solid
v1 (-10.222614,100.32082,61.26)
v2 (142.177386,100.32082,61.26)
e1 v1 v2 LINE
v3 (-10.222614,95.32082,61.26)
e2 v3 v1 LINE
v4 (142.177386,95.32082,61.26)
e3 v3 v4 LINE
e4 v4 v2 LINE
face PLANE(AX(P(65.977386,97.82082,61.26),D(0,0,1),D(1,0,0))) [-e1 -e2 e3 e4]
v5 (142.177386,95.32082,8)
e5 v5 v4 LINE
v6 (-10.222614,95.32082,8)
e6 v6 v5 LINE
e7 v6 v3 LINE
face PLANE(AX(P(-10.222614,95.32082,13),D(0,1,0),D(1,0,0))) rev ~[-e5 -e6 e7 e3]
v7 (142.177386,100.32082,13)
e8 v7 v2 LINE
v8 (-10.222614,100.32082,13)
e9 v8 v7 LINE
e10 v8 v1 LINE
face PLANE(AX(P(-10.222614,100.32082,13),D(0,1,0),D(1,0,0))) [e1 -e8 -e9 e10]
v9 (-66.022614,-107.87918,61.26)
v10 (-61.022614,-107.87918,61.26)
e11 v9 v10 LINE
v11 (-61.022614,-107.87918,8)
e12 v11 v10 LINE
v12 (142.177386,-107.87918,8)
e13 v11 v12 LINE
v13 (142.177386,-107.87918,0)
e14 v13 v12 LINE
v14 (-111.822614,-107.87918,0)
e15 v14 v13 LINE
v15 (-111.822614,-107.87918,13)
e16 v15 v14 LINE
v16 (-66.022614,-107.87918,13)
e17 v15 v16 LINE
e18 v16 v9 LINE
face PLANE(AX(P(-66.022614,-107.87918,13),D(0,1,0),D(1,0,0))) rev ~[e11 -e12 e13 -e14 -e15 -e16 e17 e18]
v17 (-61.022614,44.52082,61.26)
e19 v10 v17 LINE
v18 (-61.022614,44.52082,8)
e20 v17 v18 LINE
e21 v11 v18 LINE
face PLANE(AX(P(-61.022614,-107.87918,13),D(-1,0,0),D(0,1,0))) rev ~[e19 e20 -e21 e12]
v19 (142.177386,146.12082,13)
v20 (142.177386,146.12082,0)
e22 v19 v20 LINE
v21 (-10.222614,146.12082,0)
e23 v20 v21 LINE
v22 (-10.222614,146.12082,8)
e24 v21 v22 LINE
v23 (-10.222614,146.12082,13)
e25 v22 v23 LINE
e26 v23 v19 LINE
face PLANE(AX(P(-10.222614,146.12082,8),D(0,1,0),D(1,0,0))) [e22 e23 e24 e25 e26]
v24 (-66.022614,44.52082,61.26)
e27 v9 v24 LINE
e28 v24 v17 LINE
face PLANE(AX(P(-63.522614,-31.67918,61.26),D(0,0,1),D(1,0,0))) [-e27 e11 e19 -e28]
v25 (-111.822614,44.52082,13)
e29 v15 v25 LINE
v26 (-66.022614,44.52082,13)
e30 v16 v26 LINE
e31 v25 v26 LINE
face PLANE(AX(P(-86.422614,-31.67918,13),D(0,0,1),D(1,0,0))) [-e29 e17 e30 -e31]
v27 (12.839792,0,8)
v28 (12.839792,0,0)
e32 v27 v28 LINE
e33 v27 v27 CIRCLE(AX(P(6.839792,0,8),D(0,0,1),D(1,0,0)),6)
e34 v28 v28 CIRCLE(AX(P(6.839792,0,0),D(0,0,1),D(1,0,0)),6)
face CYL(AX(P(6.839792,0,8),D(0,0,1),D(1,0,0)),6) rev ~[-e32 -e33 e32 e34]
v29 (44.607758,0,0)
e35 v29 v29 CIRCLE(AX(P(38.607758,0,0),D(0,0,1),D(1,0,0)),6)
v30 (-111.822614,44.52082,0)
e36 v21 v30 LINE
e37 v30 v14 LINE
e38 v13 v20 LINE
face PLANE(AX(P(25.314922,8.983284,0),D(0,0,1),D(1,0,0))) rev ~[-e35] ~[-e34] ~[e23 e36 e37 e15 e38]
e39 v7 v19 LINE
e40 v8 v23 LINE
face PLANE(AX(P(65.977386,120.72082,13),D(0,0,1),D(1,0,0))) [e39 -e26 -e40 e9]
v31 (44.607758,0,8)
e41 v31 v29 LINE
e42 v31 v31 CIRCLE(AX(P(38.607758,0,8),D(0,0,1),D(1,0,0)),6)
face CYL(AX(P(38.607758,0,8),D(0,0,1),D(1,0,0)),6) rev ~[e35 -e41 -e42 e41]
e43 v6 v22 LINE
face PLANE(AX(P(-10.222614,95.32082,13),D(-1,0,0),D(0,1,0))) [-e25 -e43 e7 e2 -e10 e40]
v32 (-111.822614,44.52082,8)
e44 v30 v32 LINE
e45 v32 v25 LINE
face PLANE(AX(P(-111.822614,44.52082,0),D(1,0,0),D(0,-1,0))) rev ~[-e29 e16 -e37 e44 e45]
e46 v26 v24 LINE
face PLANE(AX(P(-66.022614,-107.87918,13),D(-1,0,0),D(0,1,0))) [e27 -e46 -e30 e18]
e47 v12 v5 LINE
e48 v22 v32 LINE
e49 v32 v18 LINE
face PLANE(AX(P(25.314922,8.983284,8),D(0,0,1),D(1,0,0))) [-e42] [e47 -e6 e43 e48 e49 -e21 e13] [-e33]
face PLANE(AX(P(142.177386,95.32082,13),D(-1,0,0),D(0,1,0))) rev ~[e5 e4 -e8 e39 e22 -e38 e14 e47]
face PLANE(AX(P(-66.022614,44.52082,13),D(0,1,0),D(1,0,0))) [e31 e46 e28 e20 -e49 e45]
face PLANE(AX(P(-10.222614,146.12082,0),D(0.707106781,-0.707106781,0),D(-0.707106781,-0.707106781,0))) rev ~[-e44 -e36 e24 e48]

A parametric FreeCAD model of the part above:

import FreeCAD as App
import Part
import Sketcher
Q = App.Units.Quantity

doc = App.newDocument("Part")
body = doc.addObject("PartDesign::Body", "Body")

# Sketch on XY plane
sketch1 = body.newObject("Sketcher::SketchObject", "Sketch")
sketch1.AttachmentSupport = (doc.getObject("XY_Plane"), [""])
sketch1.MapMode = "FlatFace"
sketch1.addGeometry([
    Part.LineSegment(App.Vector(-10, 146, 0), App.Vector(-112, 45, 0)),  # 0
    Part.LineSegment(App.Vector(-112, 45, 0), App.Vector(-112, -108, 0)),  # 1
    Part.LineSegment(App.Vector(-112, -108, 0), App.Vector(142, -108, 0)),  # 2
    Part.LineSegment(App.Vector(142, -108, 0), App.Vector(142, 146, 0)),  # 3
    Part.LineSegment(App.Vector(142, 146, 0), App.Vector(-10, 146, 0)),  # 4
], False)
sketch1.addConstraint([
    Sketcher.Constraint("Coincident", 0, 2, 1, 1),
    Sketcher.Constraint("Coincident", 1, 2, 2, 1),
    Sketcher.Constraint("Coincident", 2, 2, 3, 1),
    Sketcher.Constraint("Coincident", 3, 2, 4, 1),
    Sketcher.Constraint("Coincident", 4, 2, 0, 1),
    Sketcher.Constraint("Vertical", 1),
    Sketcher.Constraint("Horizontal", 2),
    Sketcher.Constraint("Vertical", 3),
    Sketcher.Constraint("Horizontal", 4),
    Sketcher.Constraint("Equal", 4, 1),
    Sketcher.Constraint("Equal", 2, 3),
    Sketcher.Constraint("DistanceX", 2, 1, 2, 2, Q("10 in")),
    Sketcher.Constraint("DistanceX", 4, 2, 4, 1, Q("6 in")),
    Sketcher.Constraint("DistanceY", -1, 1, 0, 2, 44.52082),
    Sketcher.Constraint("DistanceX", 0, 2, -1, 1, 111.822614),
])
pad1 = body.newObject("PartDesign::Pad", "Pad")
pad1.Profile = sketch1
pad1.Length = 8

# Sketch on XY plane
sketch2 = body.newObject("Sketcher::SketchObject", "Sketch001")
sketch2.AttachmentSupport = (doc.getObject("XY_Plane"), [""])
sketch2.MapMode = "FlatFace"
sketch2.AttachmentOffset = App.Placement(App.Vector(0, 0, 8), App.Rotation())
sketch2.addGeometry([
    Part.LineSegment(App.Vector(-10, 146, 0), App.Vector(-10, 95, 0)),  # 0
    Part.LineSegment(App.Vector(-10, 95, 0), App.Vector(142, 95, 0)),  # 1
    Part.LineSegment(App.Vector(142, 95, 0), App.Vector(142, 146, 0)),  # 2
    Part.LineSegment(App.Vector(142, 146, 0), App.Vector(-10, 146, 0)),  # 3
    Part.LineSegment(App.Vector(-112, 45, 0), App.Vector(-112, -108, 0)),  # 4
    Part.LineSegment(App.Vector(-112, -108, 0), App.Vector(-61, -108, 0)),  # 5
    Part.LineSegment(App.Vector(-61, -108, 0), App.Vector(-61, 45, 0)),  # 6
    Part.LineSegment(App.Vector(-61, 45, 0), App.Vector(-112, 45, 0)),  # 7
], False)
sketch2.addConstraint([
    Sketcher.Constraint("Coincident", 0, 2, 1, 1),
    Sketcher.Constraint("Coincident", 1, 2, 2, 1),
    Sketcher.Constraint("Coincident", 2, 2, 3, 1),
    Sketcher.Constraint("Coincident", 3, 2, 0, 1),
    Sketcher.Constraint("Coincident", 4, 2, 5, 1),
    Sketcher.Constraint("Coincident", 5, 2, 6, 1),
    Sketcher.Constraint("Coincident", 6, 2, 7, 1),
    Sketcher.Constraint("Coincident", 7, 2, 4, 1),
    Sketcher.Constraint("Vertical", 0),
    Sketcher.Constraint("Horizontal", 1),
    Sketcher.Constraint("Vertical", 2),
    Sketcher.Constraint("Horizontal", 3),
    Sketcher.Constraint("Vertical", 4),
    Sketcher.Constraint("Horizontal", 5),
    Sketcher.Constraint("Vertical", 6),
    Sketcher.Constraint("Horizontal", 7),
    Sketcher.Constraint("Equal", 7, 0),
    Sketcher.Constraint("Equal", 3, 4),
    Sketcher.Constraint("DistanceX", 1, 1, 1, 2, Q("6 in")),
    Sketcher.Constraint("DistanceX", 5, 1, 5, 2, Q("2 in")),
    Sketcher.Constraint("DistanceX", 4, 2, 0, 2, Q("4 in")),
    Sketcher.Constraint("DistanceY", 4, 2, 0, 2, Q("8 in")),
    Sketcher.Constraint("DistanceY", -1, 1, 0, 2, 95.32082),
    Sketcher.Constraint("DistanceX", 0, 2, -1, 1, 10.222614),
])
pad2 = body.newObject("PartDesign::Pad", "Pad001")
pad2.Profile = sketch2
pad2.Length = 5

# Sketch on XY plane
sketch3 = body.newObject("Sketcher::SketchObject", "Sketch002")
sketch3.AttachmentSupport = (doc.getObject("XY_Plane"), [""])
sketch3.MapMode = "FlatFace"
sketch3.AttachmentOffset = App.Placement(App.Vector(0, 0, 13), App.Rotation())
sketch3.addGeometry([
    Part.LineSegment(App.Vector(-10, 100, 0), App.Vector(-10, 95, 0)),
    Part.LineSegment(App.Vector(-10, 95, 0), App.Vector(142, 95, 0)),
    Part.LineSegment(App.Vector(142, 95, 0), App.Vector(142, 100, 0)),
    Part.LineSegment(App.Vector(142, 100, 0), App.Vector(-10, 100, 0)),
], False)
sketch3.addConstraint([
    Sketcher.Constraint("Coincident", 0, 2, 1, 1),
    Sketcher.Constraint("Coincident", 1, 2, 2, 1),
    Sketcher.Constraint("Coincident", 2, 2, 3, 1),
    Sketcher.Constraint("Coincident", 3, 2, 0, 1),
    Sketcher.Constraint("Vertical", 0),
    Sketcher.Constraint("Horizontal", 1),
    Sketcher.Constraint("Vertical", 2),
    Sketcher.Constraint("Horizontal", 3),
    Sketcher.Constraint("DistanceX", 1, 1, 1, 2, Q("6 in")),
    Sketcher.Constraint("DistanceY", 0, 2, 0, 1, 5.0),
    Sketcher.Constraint("DistanceY", -1, 1, 0, 2, 95.32082),
    Sketcher.Constraint("DistanceX", 0, 2, -1, 1, 10.222614),
])
pad3 = body.newObject("PartDesign::Pad", "Pad002")
pad3.Profile = sketch3
pad3.Length = Q("1.9 in")

# Sketch on XY plane
sketch4 = body.newObject("Sketcher::SketchObject", "Sketch003")
sketch4.AttachmentSupport = (doc.getObject("XY_Plane"), [""])
sketch4.MapMode = "FlatFace"
sketch4.AttachmentOffset = App.Placement(App.Vector(0, 0, 8), App.Rotation())
sketch4.addGeometry(Part.Circle(App.Vector(7, 0, 0), App.Vector(0, 0, 1), 6), False)
sketch4.addConstraint([
    Sketcher.Constraint("PointOnObject", 0, 3, -1),
    Sketcher.Constraint("Diameter", 0, 12.0),
    Sketcher.Constraint("DistanceX", -1, 1, 0, 3, 6.839792),
])
pocket1 = body.newObject("PartDesign::Pocket", "Pocket")
pocket1.Profile = sketch4
pocket1.Length = 8

# Sketch on XY plane
sketch5 = body.newObject("Sketcher::SketchObject", "Sketch004")
sketch5.AttachmentSupport = (doc.getObject("XY_Plane"), [""])
sketch5.MapMode = "FlatFace"
sketch5.AttachmentOffset = App.Placement(App.Vector(0, 0, 8), App.Rotation())
sketch5.addGeometry(Part.Circle(App.Vector(39, 0, 0), App.Vector(0, 0, 1), 6), False)
sketch5.addConstraint([
    Sketcher.Constraint("PointOnObject", 0, 3, -1),
    Sketcher.Constraint("Diameter", 0, 12.0),
    Sketcher.Constraint("DistanceX", -1, 1, 0, 3, 38.607758),
])
pocket2 = body.newObject("PartDesign::Pocket", "Pocket001")
pocket2.Profile = sketch5
pocket2.Length = 8

# Sketch on XY plane
sketch6 = body.newObject("Sketcher::SketchObject", "Sketch005")
sketch6.AttachmentSupport = (doc.getObject("XY_Plane"), [""])
sketch6.MapMode = "FlatFace"
sketch6.AttachmentOffset = App.Placement(App.Vector(0, 0, 13), App.Rotation())
sketch6.addGeometry([
    Part.LineSegment(App.Vector(-66, 45, 0), App.Vector(-66, -108, 0)),
    Part.LineSegment(App.Vector(-66, -108, 0), App.Vector(-61, -108, 0)),
    Part.LineSegment(App.Vector(-61, -108, 0), App.Vector(-61, 45, 0)),
    Part.LineSegment(App.Vector(-61, 45, 0), App.Vector(-66, 45, 0)),
], False)
sketch6.addConstraint([
    Sketcher.Constraint("Coincident", 0, 2, 1, 1),
    Sketcher.Constraint("Coincident", 1, 2, 2, 1),
    Sketcher.Constraint("Coincident", 2, 2, 3, 1),
    Sketcher.Constraint("Coincident", 3, 2, 0, 1),
    Sketcher.Constraint("Vertical", 0),
    Sketcher.Constraint("Horizontal", 1),
    Sketcher.Constraint("Vertical", 2),
    Sketcher.Constraint("Horizontal", 3),
    Sketcher.Constraint("DistanceY", 0, 2, 0, 1, Q("6 in")),
    Sketcher.Constraint("DistanceX", 1, 1, 1, 2, 5.0),
    Sketcher.Constraint("DistanceY", 0, 2, -1, 1, 107.87918),
    Sketcher.Constraint("DistanceX", 0, 2, -1, 1, 66.022614),
])
pad4 = body.newObject("PartDesign::Pad", "Pad003")
pad4.Profile = sketch6
pad4.Length = Q("1.9 in")

doc.recompute()
